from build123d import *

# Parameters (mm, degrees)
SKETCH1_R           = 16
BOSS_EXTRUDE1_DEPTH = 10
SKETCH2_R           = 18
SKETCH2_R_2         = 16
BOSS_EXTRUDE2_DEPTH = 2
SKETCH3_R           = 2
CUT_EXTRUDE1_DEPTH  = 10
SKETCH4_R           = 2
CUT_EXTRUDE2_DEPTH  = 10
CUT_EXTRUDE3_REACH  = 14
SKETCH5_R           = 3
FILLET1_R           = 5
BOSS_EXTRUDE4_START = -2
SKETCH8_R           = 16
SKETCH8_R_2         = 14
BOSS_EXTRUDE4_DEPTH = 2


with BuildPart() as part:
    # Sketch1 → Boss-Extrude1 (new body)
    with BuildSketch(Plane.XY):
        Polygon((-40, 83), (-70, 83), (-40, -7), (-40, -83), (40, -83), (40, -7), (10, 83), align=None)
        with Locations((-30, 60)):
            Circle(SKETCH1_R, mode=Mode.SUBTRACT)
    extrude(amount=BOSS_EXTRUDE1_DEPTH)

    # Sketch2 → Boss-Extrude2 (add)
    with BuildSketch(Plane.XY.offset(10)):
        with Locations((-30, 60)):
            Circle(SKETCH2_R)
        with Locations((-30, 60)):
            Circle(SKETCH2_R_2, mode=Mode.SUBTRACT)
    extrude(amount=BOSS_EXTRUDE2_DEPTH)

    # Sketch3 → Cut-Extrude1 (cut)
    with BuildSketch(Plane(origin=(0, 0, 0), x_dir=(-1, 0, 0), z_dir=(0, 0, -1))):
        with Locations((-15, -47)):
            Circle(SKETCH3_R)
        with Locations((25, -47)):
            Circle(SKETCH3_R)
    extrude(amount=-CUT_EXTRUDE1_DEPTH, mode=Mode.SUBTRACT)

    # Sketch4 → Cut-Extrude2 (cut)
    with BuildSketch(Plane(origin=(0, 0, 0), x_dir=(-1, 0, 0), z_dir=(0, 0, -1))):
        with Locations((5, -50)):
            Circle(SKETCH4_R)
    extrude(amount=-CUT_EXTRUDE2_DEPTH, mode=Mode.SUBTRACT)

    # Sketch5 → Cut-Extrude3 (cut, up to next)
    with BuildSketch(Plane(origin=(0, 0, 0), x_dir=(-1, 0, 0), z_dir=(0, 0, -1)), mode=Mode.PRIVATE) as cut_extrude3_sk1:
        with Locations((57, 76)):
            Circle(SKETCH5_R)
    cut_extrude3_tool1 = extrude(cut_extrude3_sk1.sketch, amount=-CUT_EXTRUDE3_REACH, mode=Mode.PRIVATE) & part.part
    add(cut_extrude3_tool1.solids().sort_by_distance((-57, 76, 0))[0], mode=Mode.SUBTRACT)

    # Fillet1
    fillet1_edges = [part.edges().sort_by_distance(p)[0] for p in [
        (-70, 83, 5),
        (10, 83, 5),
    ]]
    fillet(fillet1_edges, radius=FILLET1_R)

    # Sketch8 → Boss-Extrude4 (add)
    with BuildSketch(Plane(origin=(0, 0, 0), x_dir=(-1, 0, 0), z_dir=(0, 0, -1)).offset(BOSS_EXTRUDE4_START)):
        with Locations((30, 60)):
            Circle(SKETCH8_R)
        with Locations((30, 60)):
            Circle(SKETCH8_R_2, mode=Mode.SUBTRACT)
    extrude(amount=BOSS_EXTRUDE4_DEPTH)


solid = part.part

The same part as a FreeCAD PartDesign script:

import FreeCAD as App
import Part
import Sketcher
from FreeCAD import Vector


def edges_at(feature, points):
    """Names of the edges that pass closest to the given points."""
    edges = feature.Shape.Edges
    near = lambda p: min(range(len(edges)), key=lambda i: edges[i].distToShape(Part.Vertex(*p))[0])
    return sorted({f"Edge{near(p) + 1}" for p in points})


def add_polygon(sketch, points):
    """Adds a closed chain of lines whose ends are joined by coincident constraints."""
    first, n = sketch.GeometryCount, len(points)
    for a, b in zip(points, points[1:] + points[:1]):
        sketch.addGeometry(Part.LineSegment(App.Vector(*a, 0), App.Vector(*b, 0)), False)
    for i in range(n):
        sketch.addConstraint(Sketcher.Constraint("Coincident", first + i, 2, first + (i + 1) % n, 1))

doc = App.newDocument("Part")
body = doc.addObject("PartDesign::Body", "Body")

# Sketch on XY plane
sketch1 = body.newObject("Sketcher::SketchObject", "Sketch")
sketch1.AttachmentSupport = (doc.getObject("XY_Plane"), [""])
sketch1.MapMode = "FlatFace"
add_polygon(sketch1, [(-70, 83), (-40, -7), (-40, -83), (40, -83), (40, -7), (10, 83)])  # lines 0-5
sketch1.addGeometry(Part.Circle(Vector(-30, 60, 0), Vector(0, 0, 1), 16), False)  # 6
sketch1.addConstraint([
    Sketcher.Constraint("Vertical", 1),
    Sketcher.Constraint("Horizontal", 2),
    Sketcher.Constraint("Vertical", 3),
    Sketcher.Constraint("Horizontal", 5),
    Sketcher.Constraint("Symmetric", 0, 2, 3, 2, -2),
    Sketcher.Constraint("Parallel", 0, 4),
    Sketcher.Constraint("Diameter", 6, 32.0),
    Sketcher.Constraint("DistanceX", 2, 1, 2, 2, 80.0),
    Sketcher.Constraint("DistanceY", 1, 2, 1, 1, 76.0),
    Sketcher.Constraint("DistanceX", 6, 3, -1, 1, 30.0),
    Sketcher.Constraint("DistanceY", -1, 1, 6, 3, 60.0),
    Sketcher.Constraint("DistanceY", 0, 2, -1, 1, 7.0),
    Sketcher.Constraint("DistanceX", -1, 1, 4, 2, 10.0),
    Sketcher.Constraint("DistanceY", -1, 1, 4, 2, 83.0),
])
pad1 = body.newObject("PartDesign::Pad", "Pad")
pad1.Profile = sketch1
pad1.Length = 10

# Sketch on XY plane
sketch2 = body.newObject("Sketcher::SketchObject", "Sketch001")
sketch2.AttachmentSupport = (doc.getObject("XY_Plane"), [""])
sketch2.MapMode = "FlatFace"
sketch2.AttachmentOffset = App.Placement(Vector(0, 0, 10), App.Rotation())
sketch2.addGeometry([
    Part.Circle(Vector(-30, 60, 0), Vector(0, 0, 1), 18),
    Part.Circle(Vector(-30, 60, 0), Vector(0, 0, 1), 16),
], False)
sketch2.addConstraint([
    Sketcher.Constraint("Coincident", 1, 3, 0, 3),
    Sketcher.Constraint("Diameter", 0, 36.0),
    Sketcher.Constraint("Diameter", 1, 32.0),
    Sketcher.Constraint("DistanceX", 0, 3, -1, 1, 30.0),
    Sketcher.Constraint("DistanceY", -1, 1, 0, 3, 60.0),
])
pad2 = body.newObject("PartDesign::Pad", "Pad001")
pad2.Profile = sketch2
pad2.Length = 2

# Sketch on XY plane
sketch3 = body.newObject("Sketcher::SketchObject", "Sketch002")
sketch3.AttachmentSupport = (doc.getObject("XY_Plane"), [""])
sketch3.MapMode = "FlatFace"
sketch3.addGeometry([
    Part.Circle(Vector(15, -47, 0), Vector(0, 0, 1), 2),
    Part.Circle(Vector(-25, -47, 0), Vector(0, 0, 1), 2),
], False)
sketch3.addConstraint([
    Sketcher.Constraint("Equal", 0, 1),
    Sketcher.Constraint("Horizontal", 0, 3, 1, 3),
    Sketcher.Constraint("Diameter", 0, 4.0),
    Sketcher.Constraint("DistanceX", -1, 1, 0, 3, 15.0),
    Sketcher.Constraint("DistanceY", 0, 3, -1, 1, 47.0),
    Sketcher.Constraint("DistanceX", 1, 3, -1, 1, 25.0),
])
pocket1 = body.newObject("PartDesign::Pocket", "Pocket")
pocket1.Profile = sketch3
pocket1.Length = 10
pocket1.Reversed = True

# Sketch on XY plane
sketch4 = body.newObject("Sketcher::SketchObject", "Sketch003")
sketch4.AttachmentSupport = (doc.getObject("XY_Plane"), [""])
sketch4.MapMode = "FlatFace"
sketch4.addGeometry(Part.Circle(Vector(-5, -50, 0), Vector(0, 0, 1), 2), False)
sketch4.addConstraint([
    Sketcher.Constraint("Diameter", 0, 4.0),
    Sketcher.Constraint("DistanceX", 0, 3, -1, 1, 5.0),
    Sketcher.Constraint("DistanceY", 0, 3, -1, 1, 50.0),
])
pocket2 = body.newObject("PartDesign::Pocket", "Pocket001")
pocket2.Profile = sketch4
pocket2.Length = 10
pocket2.Reversed = True

# Sketch on XY plane
sketch5 = body.newObject("Sketcher::SketchObject", "Sketch004")
sketch5.AttachmentSupport = (doc.getObject("XY_Plane"), [""])
sketch5.MapMode = "FlatFace"
sketch5.addGeometry(Part.Circle(Vector(-57, 76, 0), Vector(0, 0, 1), 3), False)
sketch5.addConstraint([
    Sketcher.Constraint("Diameter", 0, 6.0),
    Sketcher.Constraint("DistanceX", 0, 3, -1, 1, 57.0),
    Sketcher.Constraint("DistanceY", -1, 1, 0, 3, 76.0),
])
pocket3 = body.newObject("PartDesign::Pocket", "Pocket002")
pocket3.Profile = sketch5
pocket3.Type = "UpToFirst"
pocket3.Reversed = True
doc.recompute()

fillet = body.newObject("PartDesign::Fillet", "Fillet")
fillet.Base = (pocket3, edges_at(pocket3, [(-70, 83, 5), (10, 83, 5)]))
fillet.Radius = 5

# Sketch on XY plane
sketch6 = body.newObject("Sketcher::SketchObject", "Sketch005")
sketch6.AttachmentSupport = (doc.getObject("XY_Plane"), [""])
sketch6.MapMode = "FlatFace"
sketch6.AttachmentOffset = App.Placement(Vector(0, 0, 2), App.Rotation())
sketch6.addGeometry([
    Part.Circle(Vector(-30, 60, 0), Vector(0, 0, 1), 16),
    Part.Circle(Vector(-30, 60, 0), Vector(0, 0, 1), 14),
], False)
sketch6.addConstraint([
    Sketcher.Constraint("Coincident", 1, 3, 0, 3),
    Sketcher.Constraint("Diameter", 0, 32.0),
    Sketcher.Constraint("Diameter", 1, 28.0),
    Sketcher.Constraint("DistanceX", 0, 3, -1, 1, 30.0),
    Sketcher.Constraint("DistanceY", -1, 1, 0, 3, 60.0),
])
pad3 = body.newObject("PartDesign::Pad", "Pad002")
pad3.Profile = sketch6
pad3.Length = 2
pad3.Reversed = True

doc.recompute()
